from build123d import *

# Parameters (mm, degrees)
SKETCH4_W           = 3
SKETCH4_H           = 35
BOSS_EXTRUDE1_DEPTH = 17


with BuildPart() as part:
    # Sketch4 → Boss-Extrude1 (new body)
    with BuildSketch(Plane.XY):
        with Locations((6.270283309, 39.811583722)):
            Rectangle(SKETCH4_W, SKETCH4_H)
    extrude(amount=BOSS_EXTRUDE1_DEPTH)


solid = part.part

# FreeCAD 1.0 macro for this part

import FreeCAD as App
import Part
import Sketcher
Q = App.Units.Quantity


def add_polygon(sketch, points):
    """Adds a closed chain of lines whose ends are joined by coincident constraints."""
    first, n = sketch.GeometryCount, len(points)
    for a, b in zip(points, points[1:] + points[:1]):
        sketch.addGeometry(Part.LineSegment(App.Vector(*a, 0), App.Vector(*b, 0)), False)
    for i in range(n):
        sketch.addConstraint(Sketcher.Constraint("Coincident", first + i, 2, first + (i + 1) % n, 1))

doc = App.newDocument("Part")
body = doc.addObject("PartDesign::Body", "Body")

# Sketch on XY plane
sketch1 = body.newObject("Sketcher::SketchObject", "Sketch")
sketch1.AttachmentSupport = (doc.getObject("XY_Plane"), [""])
sketch1.MapMode = "FlatFace"
add_polygon(sketch1, [(4.8, 57.3), (4.8, 22.3), (7.8, 22.3), (7.8, 57.3)])  # lines 0-3
sketch1.addConstraint([
    Sketcher.Constraint("Vertical", 0),
    Sketcher.Constraint("Horizontal", 1),
    Sketcher.Constraint("Vertical", 2),
    Sketcher.Constraint("Horizontal", 3),
    Sketcher.Constraint("DistanceX", 1, 1, 1, 2, Q("3 mm")),
    Sketcher.Constraint("DistanceY", 0, 2, 0, 1, Q("35 mm")),
    Sketcher.Constraint("DistanceX", -1, 1, 0, 2, Q("4.770283 mm")),
    Sketcher.Constraint("DistanceY", -1, 1, 0, 2, Q("22.311584 mm")),
])
pad1 = body.newObject("PartDesign::Pad", "Pad")
pad1.Profile = sketch1
pad1.Length = 17

doc.recompute()
